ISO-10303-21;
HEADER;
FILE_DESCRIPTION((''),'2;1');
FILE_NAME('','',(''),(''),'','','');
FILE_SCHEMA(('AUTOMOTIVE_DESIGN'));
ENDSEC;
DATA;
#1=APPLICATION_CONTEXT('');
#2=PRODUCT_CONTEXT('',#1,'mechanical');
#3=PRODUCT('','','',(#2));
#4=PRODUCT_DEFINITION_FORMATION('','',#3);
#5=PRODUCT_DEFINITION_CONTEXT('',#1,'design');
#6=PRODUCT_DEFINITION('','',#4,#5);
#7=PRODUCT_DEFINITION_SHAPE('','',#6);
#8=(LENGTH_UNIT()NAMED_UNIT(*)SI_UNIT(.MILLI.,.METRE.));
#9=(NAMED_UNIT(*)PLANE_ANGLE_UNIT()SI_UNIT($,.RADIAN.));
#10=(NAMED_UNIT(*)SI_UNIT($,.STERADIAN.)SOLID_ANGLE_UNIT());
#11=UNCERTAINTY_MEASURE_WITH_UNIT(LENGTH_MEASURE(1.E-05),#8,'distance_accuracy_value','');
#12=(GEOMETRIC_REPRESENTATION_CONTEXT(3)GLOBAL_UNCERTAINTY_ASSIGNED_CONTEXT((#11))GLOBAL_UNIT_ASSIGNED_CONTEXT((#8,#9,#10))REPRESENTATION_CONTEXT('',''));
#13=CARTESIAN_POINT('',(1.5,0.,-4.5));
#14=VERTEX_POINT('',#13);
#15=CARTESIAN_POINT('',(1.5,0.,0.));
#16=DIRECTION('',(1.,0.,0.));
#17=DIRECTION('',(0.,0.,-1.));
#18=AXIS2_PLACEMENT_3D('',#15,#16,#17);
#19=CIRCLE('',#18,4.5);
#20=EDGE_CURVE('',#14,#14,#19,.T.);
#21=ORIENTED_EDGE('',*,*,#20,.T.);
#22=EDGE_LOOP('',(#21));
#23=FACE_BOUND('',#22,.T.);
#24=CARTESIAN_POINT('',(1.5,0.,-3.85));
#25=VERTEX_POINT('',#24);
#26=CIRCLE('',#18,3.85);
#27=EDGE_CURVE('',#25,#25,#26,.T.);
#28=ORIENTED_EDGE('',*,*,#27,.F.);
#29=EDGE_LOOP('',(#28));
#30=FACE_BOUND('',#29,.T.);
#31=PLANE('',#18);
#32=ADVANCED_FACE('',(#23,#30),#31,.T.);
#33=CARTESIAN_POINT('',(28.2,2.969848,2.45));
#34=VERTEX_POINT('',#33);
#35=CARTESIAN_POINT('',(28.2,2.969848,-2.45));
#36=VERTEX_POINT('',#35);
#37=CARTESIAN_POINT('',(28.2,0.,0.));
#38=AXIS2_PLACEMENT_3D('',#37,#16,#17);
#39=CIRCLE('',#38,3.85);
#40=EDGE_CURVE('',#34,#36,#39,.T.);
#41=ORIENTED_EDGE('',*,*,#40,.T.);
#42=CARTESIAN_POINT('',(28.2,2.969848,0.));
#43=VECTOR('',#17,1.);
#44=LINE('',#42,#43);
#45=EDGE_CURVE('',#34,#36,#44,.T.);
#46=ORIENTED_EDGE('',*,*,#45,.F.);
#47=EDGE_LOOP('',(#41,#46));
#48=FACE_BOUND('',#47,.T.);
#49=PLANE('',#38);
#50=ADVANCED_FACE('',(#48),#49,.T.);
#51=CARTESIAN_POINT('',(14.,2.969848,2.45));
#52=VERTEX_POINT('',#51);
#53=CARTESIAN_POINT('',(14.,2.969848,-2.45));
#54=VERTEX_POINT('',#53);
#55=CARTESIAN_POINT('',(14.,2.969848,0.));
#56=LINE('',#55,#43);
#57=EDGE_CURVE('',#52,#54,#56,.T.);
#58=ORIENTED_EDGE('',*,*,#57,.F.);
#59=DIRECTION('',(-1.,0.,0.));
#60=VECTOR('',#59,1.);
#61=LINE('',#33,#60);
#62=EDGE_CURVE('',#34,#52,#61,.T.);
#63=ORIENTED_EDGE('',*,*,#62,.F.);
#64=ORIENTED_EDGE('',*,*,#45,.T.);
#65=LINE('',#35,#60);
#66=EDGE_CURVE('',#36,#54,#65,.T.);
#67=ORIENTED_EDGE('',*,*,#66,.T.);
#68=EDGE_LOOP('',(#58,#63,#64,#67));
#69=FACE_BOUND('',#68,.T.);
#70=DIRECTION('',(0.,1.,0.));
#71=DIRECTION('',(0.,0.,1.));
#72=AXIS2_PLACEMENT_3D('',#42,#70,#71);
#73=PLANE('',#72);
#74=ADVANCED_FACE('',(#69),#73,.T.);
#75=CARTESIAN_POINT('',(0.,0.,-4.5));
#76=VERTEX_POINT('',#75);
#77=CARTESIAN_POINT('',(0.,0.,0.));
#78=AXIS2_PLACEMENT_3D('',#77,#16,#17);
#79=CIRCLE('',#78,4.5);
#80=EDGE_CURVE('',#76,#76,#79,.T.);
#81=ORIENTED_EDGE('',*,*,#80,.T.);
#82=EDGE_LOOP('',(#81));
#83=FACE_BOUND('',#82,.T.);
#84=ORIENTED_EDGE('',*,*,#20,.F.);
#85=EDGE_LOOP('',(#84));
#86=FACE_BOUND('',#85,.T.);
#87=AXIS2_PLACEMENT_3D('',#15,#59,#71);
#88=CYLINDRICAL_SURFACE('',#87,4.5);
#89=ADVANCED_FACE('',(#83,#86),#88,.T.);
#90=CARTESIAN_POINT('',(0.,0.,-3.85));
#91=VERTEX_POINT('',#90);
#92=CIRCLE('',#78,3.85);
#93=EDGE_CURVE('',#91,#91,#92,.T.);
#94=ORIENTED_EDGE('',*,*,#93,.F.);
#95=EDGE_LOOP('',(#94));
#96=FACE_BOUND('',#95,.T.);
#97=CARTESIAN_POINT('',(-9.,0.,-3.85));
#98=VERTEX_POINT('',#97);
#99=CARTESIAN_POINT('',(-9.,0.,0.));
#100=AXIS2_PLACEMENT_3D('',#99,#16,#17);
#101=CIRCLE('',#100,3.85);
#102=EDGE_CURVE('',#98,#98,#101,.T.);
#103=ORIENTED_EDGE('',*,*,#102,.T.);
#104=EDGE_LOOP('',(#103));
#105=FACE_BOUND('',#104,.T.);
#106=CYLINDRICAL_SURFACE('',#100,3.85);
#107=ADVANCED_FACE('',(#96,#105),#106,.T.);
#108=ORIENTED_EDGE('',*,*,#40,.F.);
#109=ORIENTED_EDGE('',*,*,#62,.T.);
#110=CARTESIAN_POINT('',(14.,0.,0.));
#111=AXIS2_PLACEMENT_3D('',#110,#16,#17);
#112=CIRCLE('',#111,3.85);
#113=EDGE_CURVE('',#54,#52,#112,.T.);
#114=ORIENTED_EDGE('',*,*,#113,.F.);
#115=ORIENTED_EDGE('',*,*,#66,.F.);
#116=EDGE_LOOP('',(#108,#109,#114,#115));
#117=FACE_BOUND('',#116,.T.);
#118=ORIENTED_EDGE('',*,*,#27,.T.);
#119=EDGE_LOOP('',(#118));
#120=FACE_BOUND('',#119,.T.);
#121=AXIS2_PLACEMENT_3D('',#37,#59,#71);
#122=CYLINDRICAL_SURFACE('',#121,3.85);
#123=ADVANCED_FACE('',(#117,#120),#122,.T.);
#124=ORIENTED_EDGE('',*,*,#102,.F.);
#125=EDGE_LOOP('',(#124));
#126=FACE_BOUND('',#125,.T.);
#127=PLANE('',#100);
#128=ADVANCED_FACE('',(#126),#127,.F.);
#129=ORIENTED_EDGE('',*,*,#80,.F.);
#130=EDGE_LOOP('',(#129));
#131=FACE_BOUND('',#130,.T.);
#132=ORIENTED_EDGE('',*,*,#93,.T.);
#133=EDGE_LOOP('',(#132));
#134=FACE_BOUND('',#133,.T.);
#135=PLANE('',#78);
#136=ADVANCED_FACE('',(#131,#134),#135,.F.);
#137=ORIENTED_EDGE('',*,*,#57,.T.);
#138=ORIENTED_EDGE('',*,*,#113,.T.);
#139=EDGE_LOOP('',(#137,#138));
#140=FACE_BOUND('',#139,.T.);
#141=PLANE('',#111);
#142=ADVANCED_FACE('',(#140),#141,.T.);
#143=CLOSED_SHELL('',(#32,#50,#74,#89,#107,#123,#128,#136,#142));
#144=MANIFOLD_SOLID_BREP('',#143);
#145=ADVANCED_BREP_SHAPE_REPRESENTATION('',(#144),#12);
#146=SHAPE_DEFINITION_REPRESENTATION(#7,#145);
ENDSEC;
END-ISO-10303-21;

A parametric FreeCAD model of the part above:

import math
import FreeCAD as App
import Part
import Sketcher
from FreeCAD import Vector

doc = App.newDocument("Part")
body = doc.addObject("PartDesign::Body", "Body")

# Sketch on YZ plane
sketch1 = doc.addObject("Sketcher::SketchObject", "Sketch")
body.addObject(sketch1)
sketch1.AttachmentSupport = (doc.YZ_Plane, [""])
sketch1.MapMode = "FlatFace"
sketch1.addGeometry([
    Part.LineSegment(Vector(3, -2.5, 0), Vector(3, 2.5, 0)),
    Part.ArcOfCircle(Part.Circle(Vector(0, 0, 0), Vector(0, 0, 1), 3.9), math.radians(40), math.radians(270)),
    Part.ArcOfCircle(Part.Circle(Vector(0, 0, 0), Vector(0, 0, 1), 3.8), math.radians(-90), math.radians(-40)),
], False)
sketch1.addConstraint([
    Sketcher.Constraint("Coincident", 0, 2, 1, 1),
    Sketcher.Constraint("Tangent", 1, 2, 2, 1),
    Sketcher.Constraint("Coincident", 2, 2, 0, 1),
    Sketcher.Constraint("Vertical", 0),
    Sketcher.Constraint("Coincident", 1, 3, -1, 1),
    Sketcher.Constraint("Equal", 1, 2),
    Sketcher.Constraint("PointOnObject", 1, 2, -2),
    Sketcher.Constraint("Radius", 1, 3.85),
    Sketcher.Constraint("DistanceY", 0, 1, 0, 2, 4.9),
])
pad1 = doc.addObject("PartDesign::Pad", "Pad")
body.addObject(pad1)
pad1.Profile = sketch1
pad1.Length = 28.2

# Sketch on YZ plane
sketch2 = doc.addObject("Sketcher::SketchObject", "Sketch001")
body.addObject(sketch2)
sketch2.AttachmentSupport = (doc.YZ_Plane, [""])
sketch2.MapMode = "FlatFace"
sketch2.addGeometry([
    Part.Circle(Vector(0, 0, 0), Vector(0, 0, 1), 4.5),
    Part.Circle(Vector(0, 0, 0), Vector(0, 0, 1), 3.9),
], False)
sketch2.addConstraint([
    Sketcher.Constraint("Coincident", 0, 3, -1, 1),
    Sketcher.Constraint("Coincident", 1, 3, -1, 1),
    Sketcher.Constraint("Diameter", 0, 9.0),
    Sketcher.Constraint("Diameter", 1, 7.7),
])
pad2 = doc.addObject("PartDesign::Pad", "Pad001")
body.addObject(pad2)
pad2.Profile = sketch2
pad2.Length = 1.5

# Sketch on YZ plane
sketch3 = doc.addObject("Sketcher::SketchObject", "Sketch002")
body.addObject(sketch3)
sketch3.AttachmentSupport = (doc.YZ_Plane, [""])
sketch3.MapMode = "FlatFace"
sketch3.addGeometry([
    Part.ArcOfCircle(Part.Circle(Vector(0, 0, 0), Vector(0, 0, 1), 3.9), math.radians(-40), math.radians(40)),
    Part.ArcOfCircle(Part.Circle(Vector(0, 0, 0), Vector(0, 0, 1), 3.9), math.radians(40), math.radians(270)),
    Part.ArcOfCircle(Part.Circle(Vector(0, 0, 0), Vector(0, 0, 1), 3.8), math.radians(-90), math.radians(-40)),
], False)
sketch3.addConstraint([
    Sketcher.Constraint("Tangent", 0, 2, 1, 1),
    Sketcher.Constraint("Tangent", 1, 2, 2, 1),
    Sketcher.Constraint("Tangent", 2, 2, 0, 1),
    Sketcher.Constraint("Coincident", 0, 3, -1, 1),
    Sketcher.Constraint("PointOnObject", 1, 2, -2),
    Sketcher.Constraint("Vertical", 0, 2, 2, 2),
    Sketcher.Constraint("Radius", 0, 3.85),
    Sketcher.Constraint("DistanceY", 1, 2, 0, 2, 6.3),
])
pad3 = doc.addObject("PartDesign::Pad", "Pad002")
body.addObject(pad3)
pad3.Profile = sketch3
pad3.Length = 14

# Sketch on YZ plane
sketch4 = doc.addObject("Sketcher::SketchObject", "Sketch003")
body.addObject(sketch4)
sketch4.AttachmentSupport = (doc.YZ_Plane, [""])
sketch4.MapMode = "FlatFace"
sketch4.addGeometry([
    Part.ArcOfCircle(Part.Circle(Vector(0, 0, 0), Vector(0, 0, 1), 3.9), math.radians(-40), math.radians(40)),
    Part.ArcOfCircle(Part.Circle(Vector(0, 0, 0), Vector(0, 0, 1), 3.9), math.radians(40), math.radians(270)),
    Part.ArcOfCircle(Part.Circle(Vector(0, 0, 0), Vector(0, 0, 1), 3.8), math.radians(-90), math.radians(-40)),
], False)
sketch4.addConstraint([
    Sketcher.Constraint("Tangent", 0, 2, 1, 1),
    Sketcher.Constraint("Tangent", 1, 2, 2, 1),
    Sketcher.Constraint("Tangent", 2, 2, 0, 1),
    Sketcher.Constraint("Coincident", 0, 3, -1, 1),
    Sketcher.Constraint("PointOnObject", 1, 2, -2),
    Sketcher.Constraint("Vertical", 0, 2, 2, 2),
    Sketcher.Constraint("Radius", 0, 3.85),
    Sketcher.Constraint("DistanceY", 1, 2, 0, 2, 6.3),
])
pad4 = doc.addObject("PartDesign::Pad", "Pad003")
body.addObject(pad4)
pad4.Profile = sketch4
pad4.Length = 9
pad4.Reversed = True

doc.recompute()
